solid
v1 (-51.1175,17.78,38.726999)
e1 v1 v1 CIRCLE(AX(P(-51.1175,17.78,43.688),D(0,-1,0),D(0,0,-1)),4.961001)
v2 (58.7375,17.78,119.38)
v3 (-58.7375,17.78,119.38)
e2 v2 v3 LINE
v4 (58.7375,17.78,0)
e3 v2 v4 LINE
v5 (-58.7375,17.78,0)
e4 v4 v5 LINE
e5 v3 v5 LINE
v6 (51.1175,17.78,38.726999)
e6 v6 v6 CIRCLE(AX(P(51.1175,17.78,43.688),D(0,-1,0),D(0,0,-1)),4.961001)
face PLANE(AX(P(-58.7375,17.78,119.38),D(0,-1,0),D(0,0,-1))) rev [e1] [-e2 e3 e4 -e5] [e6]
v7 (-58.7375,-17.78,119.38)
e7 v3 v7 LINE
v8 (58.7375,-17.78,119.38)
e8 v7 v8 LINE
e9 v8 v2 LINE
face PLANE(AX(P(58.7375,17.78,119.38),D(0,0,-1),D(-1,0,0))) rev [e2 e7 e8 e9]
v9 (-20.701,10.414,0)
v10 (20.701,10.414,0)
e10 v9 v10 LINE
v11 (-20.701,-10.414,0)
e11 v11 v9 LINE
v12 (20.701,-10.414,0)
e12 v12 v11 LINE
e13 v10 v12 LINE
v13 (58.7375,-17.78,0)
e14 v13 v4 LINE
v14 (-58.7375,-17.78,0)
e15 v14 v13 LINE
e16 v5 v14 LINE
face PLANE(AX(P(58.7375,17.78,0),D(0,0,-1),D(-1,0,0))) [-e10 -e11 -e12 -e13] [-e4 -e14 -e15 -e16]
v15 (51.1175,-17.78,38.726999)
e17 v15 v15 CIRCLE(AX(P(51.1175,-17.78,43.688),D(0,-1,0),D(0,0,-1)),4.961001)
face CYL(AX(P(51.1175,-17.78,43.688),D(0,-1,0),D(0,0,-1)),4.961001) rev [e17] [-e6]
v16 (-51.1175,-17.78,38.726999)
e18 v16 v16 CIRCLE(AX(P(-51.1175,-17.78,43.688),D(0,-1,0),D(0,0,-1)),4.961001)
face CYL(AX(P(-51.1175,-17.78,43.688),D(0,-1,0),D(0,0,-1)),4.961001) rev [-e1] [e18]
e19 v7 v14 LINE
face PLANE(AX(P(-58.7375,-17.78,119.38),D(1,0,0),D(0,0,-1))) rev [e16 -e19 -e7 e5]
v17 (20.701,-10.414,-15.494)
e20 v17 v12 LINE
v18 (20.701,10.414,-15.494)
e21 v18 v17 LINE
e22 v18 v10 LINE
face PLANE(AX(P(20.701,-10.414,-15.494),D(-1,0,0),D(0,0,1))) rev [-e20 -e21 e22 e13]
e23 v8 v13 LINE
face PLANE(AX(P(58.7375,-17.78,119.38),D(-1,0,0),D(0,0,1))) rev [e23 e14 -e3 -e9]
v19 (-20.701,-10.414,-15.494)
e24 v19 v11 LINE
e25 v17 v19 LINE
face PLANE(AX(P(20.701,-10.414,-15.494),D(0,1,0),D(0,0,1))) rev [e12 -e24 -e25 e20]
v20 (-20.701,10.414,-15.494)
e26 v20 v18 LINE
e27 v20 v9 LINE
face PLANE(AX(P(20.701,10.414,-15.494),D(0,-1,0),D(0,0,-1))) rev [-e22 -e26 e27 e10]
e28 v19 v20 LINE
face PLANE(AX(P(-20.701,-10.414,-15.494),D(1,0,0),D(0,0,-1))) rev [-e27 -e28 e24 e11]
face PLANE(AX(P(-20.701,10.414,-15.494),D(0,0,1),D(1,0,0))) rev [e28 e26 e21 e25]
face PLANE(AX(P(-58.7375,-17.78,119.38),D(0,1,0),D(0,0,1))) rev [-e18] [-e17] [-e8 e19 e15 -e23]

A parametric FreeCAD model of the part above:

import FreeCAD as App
import Part
import Sketcher
Q = App.Units.Quantity

doc = App.newDocument("Part")
params = doc.addObject("Spreadsheet::Sheet", "Params")
for row, (alias, value) in enumerate([
    ("sketch1_height", "1.4 in"),
    ("sketch1_width", "4.625 in"),
    ("pad1_length", "4.7 in"),
    ("sketch2_width", "1.63 in"),
    ("sketch2_height", "0.82 in"),
    ("pad2_length", "0.61 in"),
    ("hole_diameter", "9.922002 mm"),
], start=1):
    params.set(f"A{row}", alias)
    params.set(f"B{row}", "=" + value)
    params.setAlias(f"B{row}", alias)

body = doc.addObject("PartDesign::Body", "Body")

# Sketch on XY plane
sketch1 = doc.addObject("Sketcher::SketchObject", "Sketch")
body.addObject(sketch1)
sketch1.AttachmentSupport = (doc.XY_Plane, [""])
sketch1.MapMode = "FlatFace"
sketch1.addGeometry([
    Part.LineSegment(App.Vector(-59, 18, 0), App.Vector(-59, -18, 0)),
    Part.LineSegment(App.Vector(-59, -18, 0), App.Vector(59, -18, 0)),
    Part.LineSegment(App.Vector(59, -18, 0), App.Vector(59, 18, 0)),
    Part.LineSegment(App.Vector(59, 18, 0), App.Vector(-59, 18, 0)),
], False)
sketch1.addConstraint([
    Sketcher.Constraint("Coincident", 0, 2, 1, 1),
    Sketcher.Constraint("Coincident", 1, 2, 2, 1),
    Sketcher.Constraint("Coincident", 2, 2, 3, 1),
    Sketcher.Constraint("Coincident", 3, 2, 0, 1),
    Sketcher.Constraint("Vertical", 0),
    Sketcher.Constraint("Horizontal", 1),
    Sketcher.Constraint("Vertical", 2),
    Sketcher.Constraint("Horizontal", 3),
    Sketcher.Constraint("Symmetric", 0, 2, 2, 2, -1, 1),
    Sketcher.Constraint("DistanceY", 0, 2, 0, 1, Q("1.4 in")),
    Sketcher.Constraint("DistanceX", 1, 1, 1, 2, Q("4.625 in")),
])
sketch1.setExpression("Constraints[9]", "Params.sketch1_height")
sketch1.setExpression("Constraints[10]", "Params.sketch1_width")
pad1 = doc.addObject("PartDesign::Pad", "Pad")
body.addObject(pad1)
pad1.Profile = sketch1
pad1.setExpression("Length", "Params.pad1_length")

# Sketch on XY plane
sketch2 = doc.addObject("Sketcher::SketchObject", "Sketch001")
body.addObject(sketch2)
sketch2.AttachmentSupport = (doc.XY_Plane, [""])
sketch2.MapMode = "FlatFace"
sketch2.addGeometry([
    Part.LineSegment(App.Vector(21, 10, 0), App.Vector(21, -10, 0)),
    Part.LineSegment(App.Vector(21, -10, 0), App.Vector(-21, -10, 0)),
    Part.LineSegment(App.Vector(-21, -10, 0), App.Vector(-21, 10, 0)),
    Part.LineSegment(App.Vector(-21, 10, 0), App.Vector(21, 10, 0)),
], False)
sketch2.addConstraint([
    Sketcher.Constraint("Coincident", 0, 2, 1, 1),
    Sketcher.Constraint("Coincident", 1, 2, 2, 1),
    Sketcher.Constraint("Coincident", 2, 2, 3, 1),
    Sketcher.Constraint("Coincident", 3, 2, 0, 1),
    Sketcher.Constraint("Vertical", 0),
    Sketcher.Constraint("Horizontal", 1),
    Sketcher.Constraint("Vertical", 2),
    Sketcher.Constraint("Horizontal", 3),
    Sketcher.Constraint("Symmetric", 0, 2, 2, 2, -1, 1),
    Sketcher.Constraint("DistanceX", 1, 2, 1, 1, Q("1.63 in")),
    Sketcher.Constraint("DistanceY", 0, 2, 0, 1, Q("0.82 in")),
])
sketch2.setExpression("Constraints[9]", "Params.sketch2_width")
sketch2.setExpression("Constraints[10]", "Params.sketch2_height")
pad2 = doc.addObject("PartDesign::Pad", "Pad001")
body.addObject(pad2)
pad2.Profile = sketch2
pad2.setExpression("Length", "Params.pad2_length")
pad2.Reversed = True

# Sketch on XZ plane
sketch3 = doc.addObject("Sketcher::SketchObject", "Sketch002")
body.addObject(sketch3)
sketch3.AttachmentSupport = (doc.XZ_Plane, [""])
sketch3.MapMode = "FlatFace"
sketch3.AttachmentOffset = App.Placement(App.Vector(0, 0, 0.7 * 25.4), App.Rotation())
sketch3.addGeometry([
    Part.Circle(App.Vector(-51.1, 43.7, 0), App.Vector(0, 0, 1), 5),
    Part.Circle(App.Vector(51.1, 43.7, 0), App.Vector(0, 0, 1), 5),
], False)
sketch3.addConstraint([
    Sketcher.Constraint("Equal", 0, 1),
    Sketcher.Constraint("Symmetric", 0, 3, 1, 3, -2),
    Sketcher.Constraint("DistanceY", -1, 1, 0, 3, Q("1.72 in")),
    Sketcher.Constraint("DistanceX", 0, 3, 1, 3, Q("4.025 in")),
    Sketcher.Constraint("Diameter", 0, 9.922002),
])
doc.recompute()
hole = doc.addObject("PartDesign::Hole", "Hole")
body.addObject(hole)
hole.Profile = sketch3
hole.ThreadType = "None"
hole.setExpression("Diameter", "Params.hole_diameter")
hole.DepthType = "ThroughAll"

doc.recompute()
